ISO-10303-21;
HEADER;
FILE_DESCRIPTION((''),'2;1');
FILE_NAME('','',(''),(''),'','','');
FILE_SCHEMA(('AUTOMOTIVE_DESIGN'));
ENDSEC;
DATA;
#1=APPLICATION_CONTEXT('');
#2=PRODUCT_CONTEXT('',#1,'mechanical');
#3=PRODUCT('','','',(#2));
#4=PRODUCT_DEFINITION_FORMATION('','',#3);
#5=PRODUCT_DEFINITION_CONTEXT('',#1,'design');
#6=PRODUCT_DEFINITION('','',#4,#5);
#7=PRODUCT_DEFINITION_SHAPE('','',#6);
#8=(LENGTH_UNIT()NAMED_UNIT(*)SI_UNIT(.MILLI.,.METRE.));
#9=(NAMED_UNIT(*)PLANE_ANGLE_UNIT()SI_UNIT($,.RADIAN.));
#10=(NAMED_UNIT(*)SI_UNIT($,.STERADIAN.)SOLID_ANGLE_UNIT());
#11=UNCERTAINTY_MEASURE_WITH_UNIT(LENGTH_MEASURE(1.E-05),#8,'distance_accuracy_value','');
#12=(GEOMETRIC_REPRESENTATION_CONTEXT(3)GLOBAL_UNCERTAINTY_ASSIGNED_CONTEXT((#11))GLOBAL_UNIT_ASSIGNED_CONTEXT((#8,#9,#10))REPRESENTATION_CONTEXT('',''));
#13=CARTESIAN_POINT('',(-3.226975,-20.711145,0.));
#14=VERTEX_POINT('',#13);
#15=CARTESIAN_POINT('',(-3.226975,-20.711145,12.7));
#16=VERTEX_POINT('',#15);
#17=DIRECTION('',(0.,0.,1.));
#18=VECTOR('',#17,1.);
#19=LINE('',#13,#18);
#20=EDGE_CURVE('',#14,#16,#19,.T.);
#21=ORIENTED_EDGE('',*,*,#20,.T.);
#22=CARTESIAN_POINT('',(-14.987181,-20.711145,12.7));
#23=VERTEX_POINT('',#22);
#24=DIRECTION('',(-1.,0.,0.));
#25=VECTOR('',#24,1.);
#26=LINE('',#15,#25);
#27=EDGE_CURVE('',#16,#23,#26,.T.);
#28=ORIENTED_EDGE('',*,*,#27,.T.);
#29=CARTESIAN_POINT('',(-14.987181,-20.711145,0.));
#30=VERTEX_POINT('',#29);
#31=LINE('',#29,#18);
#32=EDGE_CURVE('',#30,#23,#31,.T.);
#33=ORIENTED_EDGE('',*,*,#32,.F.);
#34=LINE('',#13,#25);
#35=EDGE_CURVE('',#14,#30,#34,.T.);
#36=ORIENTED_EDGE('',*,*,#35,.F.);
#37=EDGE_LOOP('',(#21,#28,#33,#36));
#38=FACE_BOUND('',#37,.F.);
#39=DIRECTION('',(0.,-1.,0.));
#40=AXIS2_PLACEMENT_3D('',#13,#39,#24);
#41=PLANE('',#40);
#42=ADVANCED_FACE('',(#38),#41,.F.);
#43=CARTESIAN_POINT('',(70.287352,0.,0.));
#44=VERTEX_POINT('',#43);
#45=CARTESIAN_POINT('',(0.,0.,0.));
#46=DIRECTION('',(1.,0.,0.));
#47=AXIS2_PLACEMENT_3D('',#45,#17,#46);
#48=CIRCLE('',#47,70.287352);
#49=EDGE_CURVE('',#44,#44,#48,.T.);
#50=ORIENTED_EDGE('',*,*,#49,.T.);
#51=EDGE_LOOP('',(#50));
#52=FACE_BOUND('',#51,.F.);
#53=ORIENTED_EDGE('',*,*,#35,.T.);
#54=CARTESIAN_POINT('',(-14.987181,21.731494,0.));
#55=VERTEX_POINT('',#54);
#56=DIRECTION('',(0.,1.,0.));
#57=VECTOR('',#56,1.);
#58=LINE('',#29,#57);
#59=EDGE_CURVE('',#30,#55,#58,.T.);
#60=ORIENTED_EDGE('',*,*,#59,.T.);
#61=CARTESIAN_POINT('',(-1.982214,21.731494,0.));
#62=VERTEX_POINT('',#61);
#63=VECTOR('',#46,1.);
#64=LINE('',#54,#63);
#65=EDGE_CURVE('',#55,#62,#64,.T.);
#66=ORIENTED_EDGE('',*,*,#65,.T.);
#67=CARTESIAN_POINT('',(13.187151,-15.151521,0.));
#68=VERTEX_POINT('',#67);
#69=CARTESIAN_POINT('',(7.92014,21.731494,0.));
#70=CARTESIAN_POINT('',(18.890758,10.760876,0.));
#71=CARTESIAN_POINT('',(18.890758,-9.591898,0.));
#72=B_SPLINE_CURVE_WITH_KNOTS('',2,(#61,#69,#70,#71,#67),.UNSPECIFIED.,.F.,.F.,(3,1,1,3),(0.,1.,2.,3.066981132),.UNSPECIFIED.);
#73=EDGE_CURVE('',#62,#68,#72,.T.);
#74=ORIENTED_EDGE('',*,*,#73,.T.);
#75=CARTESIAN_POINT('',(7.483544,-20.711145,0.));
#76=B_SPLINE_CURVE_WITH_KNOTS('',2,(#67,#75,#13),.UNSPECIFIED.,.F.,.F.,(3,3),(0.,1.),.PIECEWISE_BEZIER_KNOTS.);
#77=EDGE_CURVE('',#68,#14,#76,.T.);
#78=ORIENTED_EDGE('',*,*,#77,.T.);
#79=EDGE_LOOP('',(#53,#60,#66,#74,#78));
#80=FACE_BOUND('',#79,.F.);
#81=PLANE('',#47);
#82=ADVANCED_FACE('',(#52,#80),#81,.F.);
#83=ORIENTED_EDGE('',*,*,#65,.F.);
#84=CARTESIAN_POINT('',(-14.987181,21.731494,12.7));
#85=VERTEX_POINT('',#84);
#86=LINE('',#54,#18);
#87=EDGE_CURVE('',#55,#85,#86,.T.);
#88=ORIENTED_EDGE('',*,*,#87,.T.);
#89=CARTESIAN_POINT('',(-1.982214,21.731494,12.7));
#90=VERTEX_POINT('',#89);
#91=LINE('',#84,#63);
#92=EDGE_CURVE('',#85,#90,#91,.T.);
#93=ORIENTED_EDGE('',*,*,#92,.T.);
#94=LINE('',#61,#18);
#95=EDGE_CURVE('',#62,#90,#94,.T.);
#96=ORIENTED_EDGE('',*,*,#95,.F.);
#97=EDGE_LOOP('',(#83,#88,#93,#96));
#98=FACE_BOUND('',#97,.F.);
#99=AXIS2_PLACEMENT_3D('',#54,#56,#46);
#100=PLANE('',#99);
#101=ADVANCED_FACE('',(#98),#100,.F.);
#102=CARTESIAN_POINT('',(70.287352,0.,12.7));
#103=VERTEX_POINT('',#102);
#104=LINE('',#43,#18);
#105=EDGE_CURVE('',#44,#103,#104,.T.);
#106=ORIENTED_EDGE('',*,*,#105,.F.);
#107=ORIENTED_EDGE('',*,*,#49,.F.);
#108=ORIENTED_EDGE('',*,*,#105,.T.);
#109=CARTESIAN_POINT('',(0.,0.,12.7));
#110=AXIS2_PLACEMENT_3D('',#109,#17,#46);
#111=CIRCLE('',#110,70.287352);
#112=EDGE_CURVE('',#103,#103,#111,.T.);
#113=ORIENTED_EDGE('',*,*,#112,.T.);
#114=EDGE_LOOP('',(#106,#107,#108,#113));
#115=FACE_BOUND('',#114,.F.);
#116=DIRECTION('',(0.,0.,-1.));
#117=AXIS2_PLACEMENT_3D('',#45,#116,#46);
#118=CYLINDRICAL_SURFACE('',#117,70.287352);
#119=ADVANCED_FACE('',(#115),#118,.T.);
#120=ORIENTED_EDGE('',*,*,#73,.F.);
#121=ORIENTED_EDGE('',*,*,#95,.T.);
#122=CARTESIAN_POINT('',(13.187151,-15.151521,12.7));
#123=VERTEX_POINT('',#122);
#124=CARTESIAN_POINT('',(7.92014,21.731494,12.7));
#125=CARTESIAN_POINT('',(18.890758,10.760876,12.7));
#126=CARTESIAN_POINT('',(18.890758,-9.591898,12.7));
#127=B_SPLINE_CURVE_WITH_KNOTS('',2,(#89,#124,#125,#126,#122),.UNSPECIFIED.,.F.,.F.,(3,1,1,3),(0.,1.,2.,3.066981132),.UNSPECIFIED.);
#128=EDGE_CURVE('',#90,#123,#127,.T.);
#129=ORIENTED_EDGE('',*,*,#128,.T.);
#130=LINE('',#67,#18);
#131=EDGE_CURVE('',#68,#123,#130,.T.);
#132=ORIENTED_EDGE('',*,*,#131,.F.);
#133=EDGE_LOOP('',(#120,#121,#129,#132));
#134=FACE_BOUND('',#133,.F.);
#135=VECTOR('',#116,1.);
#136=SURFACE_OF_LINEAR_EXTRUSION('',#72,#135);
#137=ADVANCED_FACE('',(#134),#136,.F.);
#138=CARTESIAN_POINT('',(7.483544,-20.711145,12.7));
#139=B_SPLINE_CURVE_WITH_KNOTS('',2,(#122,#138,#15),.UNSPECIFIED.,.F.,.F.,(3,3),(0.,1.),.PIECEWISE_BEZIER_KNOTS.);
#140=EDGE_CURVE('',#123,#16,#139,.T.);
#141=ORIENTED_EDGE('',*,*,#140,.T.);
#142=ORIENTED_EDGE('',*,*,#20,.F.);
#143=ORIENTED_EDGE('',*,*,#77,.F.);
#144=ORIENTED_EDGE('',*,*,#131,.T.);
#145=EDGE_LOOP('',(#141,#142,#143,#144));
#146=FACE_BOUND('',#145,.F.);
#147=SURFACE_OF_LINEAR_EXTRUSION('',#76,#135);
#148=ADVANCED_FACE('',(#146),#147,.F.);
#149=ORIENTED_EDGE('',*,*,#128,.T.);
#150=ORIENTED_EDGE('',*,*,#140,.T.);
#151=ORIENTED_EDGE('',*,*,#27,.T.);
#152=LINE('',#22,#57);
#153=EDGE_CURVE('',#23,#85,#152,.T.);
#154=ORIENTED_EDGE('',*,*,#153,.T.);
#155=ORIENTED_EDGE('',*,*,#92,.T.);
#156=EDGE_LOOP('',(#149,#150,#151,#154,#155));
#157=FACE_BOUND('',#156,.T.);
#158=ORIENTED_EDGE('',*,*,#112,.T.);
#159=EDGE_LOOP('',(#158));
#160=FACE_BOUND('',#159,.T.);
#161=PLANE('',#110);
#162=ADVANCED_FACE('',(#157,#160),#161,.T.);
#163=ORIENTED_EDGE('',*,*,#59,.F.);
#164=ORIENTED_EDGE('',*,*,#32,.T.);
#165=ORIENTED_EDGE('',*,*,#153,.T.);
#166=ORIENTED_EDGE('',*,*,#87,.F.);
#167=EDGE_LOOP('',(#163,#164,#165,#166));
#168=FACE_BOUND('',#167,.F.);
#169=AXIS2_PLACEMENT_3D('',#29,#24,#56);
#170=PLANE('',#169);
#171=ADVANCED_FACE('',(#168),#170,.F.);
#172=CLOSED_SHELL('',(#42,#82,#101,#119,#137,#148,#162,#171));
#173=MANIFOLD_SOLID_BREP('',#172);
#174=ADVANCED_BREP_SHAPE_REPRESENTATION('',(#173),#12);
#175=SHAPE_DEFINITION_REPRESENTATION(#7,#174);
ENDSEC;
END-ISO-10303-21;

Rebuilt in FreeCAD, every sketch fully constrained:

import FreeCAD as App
import Part
import Sketcher
from FreeCAD import Vector
Q = App.Units.Quantity

doc = App.newDocument("Part")
body = doc.addObject("PartDesign::Body", "Body")

# Sketch on XY plane
sketch1 = body.newObject("Sketcher::SketchObject", "Sketch")
sketch1.AttachmentSupport = (doc.getObject("XY_Plane"), [""])
sketch1.MapMode = "FlatFace"
sketch1.addGeometry([
    Part.Circle(Vector(0, 0, 0), Vector(0, 0, 1), 70.287352),  # 0
    Part.BSplineCurve([Vector(-1.982214, 21.731494, 0), Vector(7.92014, 21.731494, 0), Vector(18.890758, 10.760876, 0), Vector(18.890758, -9.591898, 0), Vector(13.187151, -15.151521, 0)], [3, 1, 1, 3], [0, 1, 2, 3.066981132], False, 2, [1, 1, 1, 1, 1], False),  # 1
    Part.BSplineCurve([Vector(13.187151, -15.151521, 0), Vector(7.483544, -20.711145, 0), Vector(-3.226975, -20.711145, 0)], [3, 3], [0, 1], False, 2, [1, 1, 1], False),  # 2
    Part.LineSegment(Vector(-3.226975, -20.711145, 0), Vector(-14.987181, -20.711145, 0)),  # 3
    Part.LineSegment(Vector(-14.987181, -20.711145, 0), Vector(-14.987181, 21.731494, 0)),  # 4
    Part.LineSegment(Vector(-14.987181, 21.731494, 0), Vector(-1.982214, 21.731494, 0)),  # 5
], False)
sketch1.addConstraint([
    Sketcher.Constraint("Block", 1),
    Sketcher.Constraint("Block", 2),
    Sketcher.Constraint("Coincident", 2, 2, 3, 1),
    Sketcher.Constraint("Coincident", 3, 2, 4, 1),
    Sketcher.Constraint("Coincident", 4, 2, 5, 1),
    Sketcher.Constraint("Coincident", 5, 2, 1, 1),
    Sketcher.Constraint("Horizontal", 3),
    Sketcher.Constraint("Vertical", 4),
    Sketcher.Constraint("Horizontal", 5),
    Sketcher.Constraint("Coincident", 0, 3, -1, 1),
    Sketcher.Constraint("Diameter", 0, 140.574703),
    Sketcher.Constraint("DistanceX", 3, 2, 3, 1, 11.760206),
])
pad1 = body.newObject("PartDesign::Pad", "Pad")
pad1.Profile = sketch1
pad1.Length = Q("0.5 in")

doc.recompute()
